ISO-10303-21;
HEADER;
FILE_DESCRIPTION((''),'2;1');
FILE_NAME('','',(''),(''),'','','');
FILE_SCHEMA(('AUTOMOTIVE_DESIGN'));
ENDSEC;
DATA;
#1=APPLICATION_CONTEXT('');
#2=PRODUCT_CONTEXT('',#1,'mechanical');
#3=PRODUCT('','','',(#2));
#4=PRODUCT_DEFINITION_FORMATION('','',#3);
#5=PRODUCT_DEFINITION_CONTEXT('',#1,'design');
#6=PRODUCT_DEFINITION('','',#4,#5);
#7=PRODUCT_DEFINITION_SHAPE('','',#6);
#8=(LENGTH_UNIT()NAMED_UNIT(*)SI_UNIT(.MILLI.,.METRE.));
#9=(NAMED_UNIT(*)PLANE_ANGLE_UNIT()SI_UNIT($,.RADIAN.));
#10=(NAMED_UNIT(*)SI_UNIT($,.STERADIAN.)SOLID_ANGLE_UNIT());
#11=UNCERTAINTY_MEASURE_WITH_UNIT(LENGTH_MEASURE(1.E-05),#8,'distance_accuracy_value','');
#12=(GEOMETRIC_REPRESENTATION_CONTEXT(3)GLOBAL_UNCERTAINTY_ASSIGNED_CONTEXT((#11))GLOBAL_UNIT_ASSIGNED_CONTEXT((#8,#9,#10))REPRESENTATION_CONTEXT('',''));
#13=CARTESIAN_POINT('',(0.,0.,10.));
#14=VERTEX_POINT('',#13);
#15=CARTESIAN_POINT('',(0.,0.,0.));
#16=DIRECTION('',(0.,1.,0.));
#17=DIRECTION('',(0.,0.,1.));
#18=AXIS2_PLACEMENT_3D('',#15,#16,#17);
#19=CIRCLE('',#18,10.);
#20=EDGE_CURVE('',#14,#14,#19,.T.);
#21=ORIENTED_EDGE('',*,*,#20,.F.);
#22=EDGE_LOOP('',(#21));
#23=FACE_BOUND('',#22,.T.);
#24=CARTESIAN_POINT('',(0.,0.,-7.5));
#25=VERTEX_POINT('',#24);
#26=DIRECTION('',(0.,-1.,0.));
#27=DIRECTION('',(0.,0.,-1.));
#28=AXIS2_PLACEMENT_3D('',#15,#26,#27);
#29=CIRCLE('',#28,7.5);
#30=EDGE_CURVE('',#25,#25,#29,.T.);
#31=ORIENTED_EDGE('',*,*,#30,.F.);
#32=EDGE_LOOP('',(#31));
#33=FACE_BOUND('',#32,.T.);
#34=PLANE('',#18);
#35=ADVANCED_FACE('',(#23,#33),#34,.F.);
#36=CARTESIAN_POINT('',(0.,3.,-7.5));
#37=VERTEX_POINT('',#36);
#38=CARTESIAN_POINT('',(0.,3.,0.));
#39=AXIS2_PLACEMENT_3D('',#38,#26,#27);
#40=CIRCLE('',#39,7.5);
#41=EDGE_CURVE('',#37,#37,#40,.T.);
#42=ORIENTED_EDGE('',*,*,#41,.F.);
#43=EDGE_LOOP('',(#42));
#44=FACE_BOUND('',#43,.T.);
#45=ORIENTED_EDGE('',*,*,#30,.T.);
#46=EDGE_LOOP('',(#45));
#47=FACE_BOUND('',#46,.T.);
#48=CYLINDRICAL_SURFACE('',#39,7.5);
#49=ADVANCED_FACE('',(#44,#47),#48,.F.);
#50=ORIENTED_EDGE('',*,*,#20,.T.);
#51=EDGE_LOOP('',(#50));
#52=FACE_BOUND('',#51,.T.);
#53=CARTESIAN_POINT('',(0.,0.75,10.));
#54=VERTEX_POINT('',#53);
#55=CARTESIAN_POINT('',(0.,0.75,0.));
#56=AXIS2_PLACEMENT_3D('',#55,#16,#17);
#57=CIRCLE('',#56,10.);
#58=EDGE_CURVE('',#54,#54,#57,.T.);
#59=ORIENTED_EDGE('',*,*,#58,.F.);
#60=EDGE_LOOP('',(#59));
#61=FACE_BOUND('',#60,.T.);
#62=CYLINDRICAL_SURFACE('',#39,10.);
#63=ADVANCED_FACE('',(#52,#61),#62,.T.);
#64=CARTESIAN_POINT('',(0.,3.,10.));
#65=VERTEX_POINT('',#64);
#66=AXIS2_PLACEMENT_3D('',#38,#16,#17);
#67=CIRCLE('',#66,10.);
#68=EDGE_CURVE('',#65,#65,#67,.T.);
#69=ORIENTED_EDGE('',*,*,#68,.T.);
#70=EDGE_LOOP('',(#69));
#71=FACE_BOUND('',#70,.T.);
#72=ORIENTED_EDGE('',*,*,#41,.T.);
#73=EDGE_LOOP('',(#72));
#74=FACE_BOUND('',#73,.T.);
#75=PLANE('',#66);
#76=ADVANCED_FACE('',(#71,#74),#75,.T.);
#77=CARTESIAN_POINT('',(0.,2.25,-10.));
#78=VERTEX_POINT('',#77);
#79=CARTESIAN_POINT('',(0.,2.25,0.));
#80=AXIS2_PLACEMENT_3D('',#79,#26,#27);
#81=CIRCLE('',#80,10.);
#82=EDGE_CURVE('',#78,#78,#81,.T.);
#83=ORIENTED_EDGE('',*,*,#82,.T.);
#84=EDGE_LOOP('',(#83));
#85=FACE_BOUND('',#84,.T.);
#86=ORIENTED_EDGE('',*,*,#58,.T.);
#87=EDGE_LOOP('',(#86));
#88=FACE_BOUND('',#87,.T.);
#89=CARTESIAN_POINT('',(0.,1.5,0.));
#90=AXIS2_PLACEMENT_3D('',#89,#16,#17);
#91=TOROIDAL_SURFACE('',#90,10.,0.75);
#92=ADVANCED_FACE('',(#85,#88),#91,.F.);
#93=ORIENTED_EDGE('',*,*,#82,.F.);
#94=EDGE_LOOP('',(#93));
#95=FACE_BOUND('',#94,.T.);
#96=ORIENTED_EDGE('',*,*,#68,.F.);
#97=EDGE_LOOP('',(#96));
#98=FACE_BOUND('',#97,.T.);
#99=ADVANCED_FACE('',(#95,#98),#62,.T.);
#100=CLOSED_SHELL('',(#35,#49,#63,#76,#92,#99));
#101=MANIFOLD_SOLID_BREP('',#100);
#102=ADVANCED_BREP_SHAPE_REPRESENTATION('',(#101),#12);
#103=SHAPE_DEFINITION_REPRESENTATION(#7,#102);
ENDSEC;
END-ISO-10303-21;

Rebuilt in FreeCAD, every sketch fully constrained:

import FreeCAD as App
import Part
import Sketcher

V = App.Vector

doc = App.newDocument("Part")
params = doc.addObject("Spreadsheet::Sheet", "Params")
for row, (alias, value) in enumerate([
    ("sketch1_diameter", "20 mm"),
    ("pad1_length", "3 mm"),
    ("sketch2_diameter", "1.5 mm"),
    ("groove_angle", "360 deg"),
    ("sketch3_diameter", "15 mm"),
], start=1):
    params.set(f"A{row}", alias)
    params.set(f"B{row}", "=" + value)
    params.setAlias(f"B{row}", alias)

body = doc.addObject("PartDesign::Body", "Body")

sketch1 = body.newObject("Sketcher::SketchObject", "Sketch")
sketch1.AttachmentSupport = (doc.getObject("XZ_Plane"), [""])
sketch1.MapMode = "FlatFace"
sketch1.addGeometry(Part.Circle(V(0, 0, 0), V(0, 0, 1), 10), False)
sketch1.addConstraint([
    Sketcher.Constraint("Coincident", 0, 3, -1, 1),
    Sketcher.Constraint("Diameter", 0, 20.0),
])
sketch1.setExpression("Constraints[1]", "Params.sketch1_diameter")
pad1 = body.newObject("PartDesign::Pad", "Pad")
pad1.Profile = sketch1
pad1.setExpression("Length", "Params.pad1_length")
pad1.Reversed = True

sketch2 = body.newObject("Sketcher::SketchObject", "Sketch001")
sketch2.AttachmentSupport = (doc.getObject("YZ_Plane"), [""])
sketch2.MapMode = "FlatFace"
sketch2.addGeometry(Part.Circle(V(1.5, -10, 0), V(0, 0, 1), 0.75), False)
sketch2.addConstraint([
    Sketcher.Constraint("Diameter", 0, 1.5),
    Sketcher.Constraint("DistanceY", 0, 3, -1, 1, 10.0),
    Sketcher.Constraint("DistanceX", -1, 1, 0, 3, 1.5),
])
sketch2.setExpression("Constraints[0]", "Params.sketch2_diameter")
groove = body.newObject("PartDesign::Groove", "Groove")
groove.Profile = sketch2
groove.ReferenceAxis = (sketch2, ["H_Axis"])
groove.setExpression("Angle", "Params.groove_angle")

sketch3 = body.newObject("Sketcher::SketchObject", "Sketch002")
sketch3.AttachmentSupport = (doc.getObject("XZ_Plane"), [""])
sketch3.MapMode = "FlatFace"
sketch3.addGeometry(Part.Circle(V(0, 0, 0), V(0, 0, 1), 7.5), False)
sketch3.addConstraint([
    Sketcher.Constraint("Coincident", 0, 3, -1, 1),
    Sketcher.Constraint("Diameter", 0, 15.0),
])
sketch3.setExpression("Constraints[1]", "Params.sketch3_diameter")
pocket1 = body.newObject("PartDesign::Pocket", "Pocket")
pocket1.Profile = sketch3
pocket1.Type = "ThroughAll"

doc.recompute()
